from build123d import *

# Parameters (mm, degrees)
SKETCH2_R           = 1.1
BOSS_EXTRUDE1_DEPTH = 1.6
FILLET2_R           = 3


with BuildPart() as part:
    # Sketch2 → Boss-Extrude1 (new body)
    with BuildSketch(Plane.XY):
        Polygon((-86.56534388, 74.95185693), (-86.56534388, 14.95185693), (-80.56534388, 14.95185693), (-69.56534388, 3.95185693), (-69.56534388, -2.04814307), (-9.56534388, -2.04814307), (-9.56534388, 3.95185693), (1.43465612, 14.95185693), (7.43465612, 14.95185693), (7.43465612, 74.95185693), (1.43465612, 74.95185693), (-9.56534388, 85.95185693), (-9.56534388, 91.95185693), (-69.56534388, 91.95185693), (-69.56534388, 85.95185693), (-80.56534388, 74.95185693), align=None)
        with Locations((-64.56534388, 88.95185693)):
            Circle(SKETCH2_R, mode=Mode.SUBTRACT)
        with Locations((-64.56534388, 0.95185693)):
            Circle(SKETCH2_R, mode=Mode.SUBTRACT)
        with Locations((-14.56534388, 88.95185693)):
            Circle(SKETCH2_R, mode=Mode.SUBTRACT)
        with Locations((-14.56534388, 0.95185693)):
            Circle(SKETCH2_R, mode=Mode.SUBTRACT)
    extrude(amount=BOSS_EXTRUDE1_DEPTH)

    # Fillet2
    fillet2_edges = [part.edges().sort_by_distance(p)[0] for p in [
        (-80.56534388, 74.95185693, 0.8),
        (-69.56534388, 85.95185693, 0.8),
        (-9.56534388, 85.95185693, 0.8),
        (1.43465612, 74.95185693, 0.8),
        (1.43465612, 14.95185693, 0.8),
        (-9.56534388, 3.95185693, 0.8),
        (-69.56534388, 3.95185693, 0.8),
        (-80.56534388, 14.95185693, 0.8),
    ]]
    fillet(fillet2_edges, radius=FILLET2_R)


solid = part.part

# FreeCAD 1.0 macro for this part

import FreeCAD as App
import Part
import Sketcher
from FreeCAD import Vector
Q = App.Units.Quantity


def edges_at(feature, points):
    """Names of the edges that pass closest to the given points."""
    edges = feature.Shape.Edges
    near = lambda p: min(range(len(edges)), key=lambda i: edges[i].distToShape(Part.Vertex(*p))[0])
    return sorted({f"Edge{near(p) + 1}" for p in points})

doc = App.newDocument("Part")
body = doc.addObject("PartDesign::Body", "Body")

# Sketch on XY plane
sketch1 = body.newObject("Sketcher::SketchObject", "Sketch")
sketch1.AttachmentSupport = (doc.getObject("XY_Plane"), [""])
sketch1.MapMode = "FlatFace"
sketch1.addGeometry([
    Part.LineSegment(Vector(-86.6, 75, 0), Vector(-86.6, 15, 0)),  # 0
    Part.LineSegment(Vector(-86.6, 15, 0), Vector(-80.6, 15, 0)),  # 1
    Part.LineSegment(Vector(-80.6, 15, 0), Vector(-69.6, 4, 0)),  # 2
    Part.LineSegment(Vector(-69.6, 4, 0), Vector(-69.6, -2, 0)),  # 3
    Part.LineSegment(Vector(-69.6, -2, 0), Vector(-9.6, -2, 0)),  # 4
    Part.LineSegment(Vector(-9.6, -2, 0), Vector(-9.6, 4, 0)),  # 5
    Part.LineSegment(Vector(-9.6, 4, 0), Vector(1.4, 15, 0)),  # 6
    Part.LineSegment(Vector(1.4, 15, 0), Vector(7.4, 15, 0)),  # 7
    Part.LineSegment(Vector(7.4, 15, 0), Vector(7.4, 75, 0)),  # 8
    Part.LineSegment(Vector(7.4, 75, 0), Vector(1.4, 75, 0)),  # 9
    Part.LineSegment(Vector(1.4, 75, 0), Vector(-9.6, 86, 0)),  # 10
    Part.LineSegment(Vector(-9.6, 86, 0), Vector(-9.6, 92, 0)),  # 11
    Part.LineSegment(Vector(-9.6, 92, 0), Vector(-69.6, 92, 0)),  # 12
    Part.LineSegment(Vector(-69.6, 92, 0), Vector(-69.6, 86, 0)),  # 13
    Part.LineSegment(Vector(-69.6, 86, 0), Vector(-80.6, 75, 0)),  # 14
    Part.LineSegment(Vector(-80.6, 75, 0), Vector(-86.6, 75, 0)),  # 15
    Part.Circle(Vector(-64.6, 1, 0), Vector(0, 0, 1), 1.1),  # 16
    Part.Circle(Vector(-14.6, 1, 0), Vector(0, 0, 1), 1.1),  # 17
    Part.Circle(Vector(-64.6, 89, 0), Vector(0, 0, 1), 1.1),  # 18
    Part.Circle(Vector(-14.6, 89, 0), Vector(0, 0, 1), 1.1),  # 19
], False)
sketch1.addConstraint([
    Sketcher.Constraint("Coincident", 0, 2, 1, 1),
    Sketcher.Constraint("Coincident", 1, 2, 2, 1),
    Sketcher.Constraint("Coincident", 2, 2, 3, 1),
    Sketcher.Constraint("Coincident", 3, 2, 4, 1),
    Sketcher.Constraint("Coincident", 4, 2, 5, 1),
    Sketcher.Constraint("Coincident", 5, 2, 6, 1),
    Sketcher.Constraint("Coincident", 6, 2, 7, 1),
    Sketcher.Constraint("Coincident", 7, 2, 8, 1),
    Sketcher.Constraint("Coincident", 8, 2, 9, 1),
    Sketcher.Constraint("Coincident", 9, 2, 10, 1),
    Sketcher.Constraint("Coincident", 10, 2, 11, 1),
    Sketcher.Constraint("Coincident", 11, 2, 12, 1),
    Sketcher.Constraint("Coincident", 12, 2, 13, 1),
    Sketcher.Constraint("Coincident", 13, 2, 14, 1),
    Sketcher.Constraint("Coincident", 14, 2, 15, 1),
    Sketcher.Constraint("Coincident", 15, 2, 0, 1),
    Sketcher.Constraint("Vertical", 0),
    Sketcher.Constraint("Horizontal", 1),
    Sketcher.Constraint("Vertical", 3),
    Sketcher.Constraint("Horizontal", 4),
    Sketcher.Constraint("Vertical", 5),
    Sketcher.Constraint("Horizontal", 7),
    Sketcher.Constraint("Vertical", 8),
    Sketcher.Constraint("Horizontal", 9),
    Sketcher.Constraint("Vertical", 11),
    Sketcher.Constraint("Horizontal", 12),
    Sketcher.Constraint("Vertical", 13),
    Sketcher.Constraint("Horizontal", 15),
    Sketcher.Constraint("Equal", 16, 17),
    Sketcher.Constraint("Equal", 17, 18),
    Sketcher.Constraint("Equal", 18, 19),
    Sketcher.Constraint("Perpendicular", 2, 6),
    Sketcher.Constraint("Perpendicular", 6, 10),
    Sketcher.Constraint("Perpendicular", 10, 14),
    Sketcher.Constraint("Horizontal", 16, 3, 17, 3),
    Sketcher.Constraint("Horizontal", 18, 3, 19, 3),
    Sketcher.Constraint("Horizontal", 2, 2, 5, 2),
    Sketcher.Constraint("Horizontal", 1, 2, 6, 2),
    Sketcher.Constraint("Horizontal", 10, 2, 13, 2),
    Sketcher.Constraint("Horizontal", 9, 2, 14, 2),
    Sketcher.Constraint("Vertical", 16, 3, 18, 3),
    Sketcher.Constraint("Vertical", 17, 3, 19, 3),
    Sketcher.Constraint("Vertical", 6, 2, 9, 2),
    Sketcher.Constraint("Vertical", 5, 2, 10, 2),
    Sketcher.Constraint("Vertical", 3, 2, 12, 2),
    Sketcher.Constraint("Vertical", 1, 2, 14, 2),
    Sketcher.Constraint("Equal", 1, 7),
    Sketcher.Constraint("Equal", 12, 0),
    Sketcher.Constraint("Equal", 15, 3),
    Sketcher.Constraint("Equal", 5, 11),
    Sketcher.Constraint("Diameter", 16, Q("2.2 mm")),
    Sketcher.Constraint("DistanceX", 1, 1, 1, 2, Q("6 mm")),
    Sketcher.Constraint("DistanceX", 4, 1, 4, 2, Q("60 mm")),
    Sketcher.Constraint("DistanceX", 16, 3, 17, 3, Q("50 mm")),
    Sketcher.Constraint("DistanceY", 16, 3, 18, 3, Q("88 mm")),
    Sketcher.Constraint("DistanceX", 0, 2, 16, 3, Q("22 mm")),
    Sketcher.Constraint("DistanceY", 16, 3, 0, 2, Q("14 mm")),
    Sketcher.Constraint("DistanceX", 2, 2, 16, 3, Q("5 mm")),
    Sketcher.Constraint("DistanceX", 16, 3, -1, 1, Q("64.565344 mm")),
    Sketcher.Constraint("DistanceY", -1, 1, 16, 3, Q("0.951857 mm")),
])
pad1 = body.newObject("PartDesign::Pad", "Pad")
pad1.Profile = sketch1
pad1.Length = 1.6
doc.recompute()

fillet = body.newObject("PartDesign::Fillet", "Fillet")
fillet.Base = (pad1, edges_at(pad1, [
    (-80.565, 74.952, 0.8),
    (-69.565, 85.952, 0.8),
    (-9.565, 85.952, 0.8),
    (1.435, 74.952, 0.8),
    (1.435, 14.952, 0.8),
    (-9.565, 3.952, 0.8),
    (-69.565, 3.952, 0.8),
    (-80.565, 14.952, 0.8),
]))
fillet.Radius = 3

doc.recompute()
